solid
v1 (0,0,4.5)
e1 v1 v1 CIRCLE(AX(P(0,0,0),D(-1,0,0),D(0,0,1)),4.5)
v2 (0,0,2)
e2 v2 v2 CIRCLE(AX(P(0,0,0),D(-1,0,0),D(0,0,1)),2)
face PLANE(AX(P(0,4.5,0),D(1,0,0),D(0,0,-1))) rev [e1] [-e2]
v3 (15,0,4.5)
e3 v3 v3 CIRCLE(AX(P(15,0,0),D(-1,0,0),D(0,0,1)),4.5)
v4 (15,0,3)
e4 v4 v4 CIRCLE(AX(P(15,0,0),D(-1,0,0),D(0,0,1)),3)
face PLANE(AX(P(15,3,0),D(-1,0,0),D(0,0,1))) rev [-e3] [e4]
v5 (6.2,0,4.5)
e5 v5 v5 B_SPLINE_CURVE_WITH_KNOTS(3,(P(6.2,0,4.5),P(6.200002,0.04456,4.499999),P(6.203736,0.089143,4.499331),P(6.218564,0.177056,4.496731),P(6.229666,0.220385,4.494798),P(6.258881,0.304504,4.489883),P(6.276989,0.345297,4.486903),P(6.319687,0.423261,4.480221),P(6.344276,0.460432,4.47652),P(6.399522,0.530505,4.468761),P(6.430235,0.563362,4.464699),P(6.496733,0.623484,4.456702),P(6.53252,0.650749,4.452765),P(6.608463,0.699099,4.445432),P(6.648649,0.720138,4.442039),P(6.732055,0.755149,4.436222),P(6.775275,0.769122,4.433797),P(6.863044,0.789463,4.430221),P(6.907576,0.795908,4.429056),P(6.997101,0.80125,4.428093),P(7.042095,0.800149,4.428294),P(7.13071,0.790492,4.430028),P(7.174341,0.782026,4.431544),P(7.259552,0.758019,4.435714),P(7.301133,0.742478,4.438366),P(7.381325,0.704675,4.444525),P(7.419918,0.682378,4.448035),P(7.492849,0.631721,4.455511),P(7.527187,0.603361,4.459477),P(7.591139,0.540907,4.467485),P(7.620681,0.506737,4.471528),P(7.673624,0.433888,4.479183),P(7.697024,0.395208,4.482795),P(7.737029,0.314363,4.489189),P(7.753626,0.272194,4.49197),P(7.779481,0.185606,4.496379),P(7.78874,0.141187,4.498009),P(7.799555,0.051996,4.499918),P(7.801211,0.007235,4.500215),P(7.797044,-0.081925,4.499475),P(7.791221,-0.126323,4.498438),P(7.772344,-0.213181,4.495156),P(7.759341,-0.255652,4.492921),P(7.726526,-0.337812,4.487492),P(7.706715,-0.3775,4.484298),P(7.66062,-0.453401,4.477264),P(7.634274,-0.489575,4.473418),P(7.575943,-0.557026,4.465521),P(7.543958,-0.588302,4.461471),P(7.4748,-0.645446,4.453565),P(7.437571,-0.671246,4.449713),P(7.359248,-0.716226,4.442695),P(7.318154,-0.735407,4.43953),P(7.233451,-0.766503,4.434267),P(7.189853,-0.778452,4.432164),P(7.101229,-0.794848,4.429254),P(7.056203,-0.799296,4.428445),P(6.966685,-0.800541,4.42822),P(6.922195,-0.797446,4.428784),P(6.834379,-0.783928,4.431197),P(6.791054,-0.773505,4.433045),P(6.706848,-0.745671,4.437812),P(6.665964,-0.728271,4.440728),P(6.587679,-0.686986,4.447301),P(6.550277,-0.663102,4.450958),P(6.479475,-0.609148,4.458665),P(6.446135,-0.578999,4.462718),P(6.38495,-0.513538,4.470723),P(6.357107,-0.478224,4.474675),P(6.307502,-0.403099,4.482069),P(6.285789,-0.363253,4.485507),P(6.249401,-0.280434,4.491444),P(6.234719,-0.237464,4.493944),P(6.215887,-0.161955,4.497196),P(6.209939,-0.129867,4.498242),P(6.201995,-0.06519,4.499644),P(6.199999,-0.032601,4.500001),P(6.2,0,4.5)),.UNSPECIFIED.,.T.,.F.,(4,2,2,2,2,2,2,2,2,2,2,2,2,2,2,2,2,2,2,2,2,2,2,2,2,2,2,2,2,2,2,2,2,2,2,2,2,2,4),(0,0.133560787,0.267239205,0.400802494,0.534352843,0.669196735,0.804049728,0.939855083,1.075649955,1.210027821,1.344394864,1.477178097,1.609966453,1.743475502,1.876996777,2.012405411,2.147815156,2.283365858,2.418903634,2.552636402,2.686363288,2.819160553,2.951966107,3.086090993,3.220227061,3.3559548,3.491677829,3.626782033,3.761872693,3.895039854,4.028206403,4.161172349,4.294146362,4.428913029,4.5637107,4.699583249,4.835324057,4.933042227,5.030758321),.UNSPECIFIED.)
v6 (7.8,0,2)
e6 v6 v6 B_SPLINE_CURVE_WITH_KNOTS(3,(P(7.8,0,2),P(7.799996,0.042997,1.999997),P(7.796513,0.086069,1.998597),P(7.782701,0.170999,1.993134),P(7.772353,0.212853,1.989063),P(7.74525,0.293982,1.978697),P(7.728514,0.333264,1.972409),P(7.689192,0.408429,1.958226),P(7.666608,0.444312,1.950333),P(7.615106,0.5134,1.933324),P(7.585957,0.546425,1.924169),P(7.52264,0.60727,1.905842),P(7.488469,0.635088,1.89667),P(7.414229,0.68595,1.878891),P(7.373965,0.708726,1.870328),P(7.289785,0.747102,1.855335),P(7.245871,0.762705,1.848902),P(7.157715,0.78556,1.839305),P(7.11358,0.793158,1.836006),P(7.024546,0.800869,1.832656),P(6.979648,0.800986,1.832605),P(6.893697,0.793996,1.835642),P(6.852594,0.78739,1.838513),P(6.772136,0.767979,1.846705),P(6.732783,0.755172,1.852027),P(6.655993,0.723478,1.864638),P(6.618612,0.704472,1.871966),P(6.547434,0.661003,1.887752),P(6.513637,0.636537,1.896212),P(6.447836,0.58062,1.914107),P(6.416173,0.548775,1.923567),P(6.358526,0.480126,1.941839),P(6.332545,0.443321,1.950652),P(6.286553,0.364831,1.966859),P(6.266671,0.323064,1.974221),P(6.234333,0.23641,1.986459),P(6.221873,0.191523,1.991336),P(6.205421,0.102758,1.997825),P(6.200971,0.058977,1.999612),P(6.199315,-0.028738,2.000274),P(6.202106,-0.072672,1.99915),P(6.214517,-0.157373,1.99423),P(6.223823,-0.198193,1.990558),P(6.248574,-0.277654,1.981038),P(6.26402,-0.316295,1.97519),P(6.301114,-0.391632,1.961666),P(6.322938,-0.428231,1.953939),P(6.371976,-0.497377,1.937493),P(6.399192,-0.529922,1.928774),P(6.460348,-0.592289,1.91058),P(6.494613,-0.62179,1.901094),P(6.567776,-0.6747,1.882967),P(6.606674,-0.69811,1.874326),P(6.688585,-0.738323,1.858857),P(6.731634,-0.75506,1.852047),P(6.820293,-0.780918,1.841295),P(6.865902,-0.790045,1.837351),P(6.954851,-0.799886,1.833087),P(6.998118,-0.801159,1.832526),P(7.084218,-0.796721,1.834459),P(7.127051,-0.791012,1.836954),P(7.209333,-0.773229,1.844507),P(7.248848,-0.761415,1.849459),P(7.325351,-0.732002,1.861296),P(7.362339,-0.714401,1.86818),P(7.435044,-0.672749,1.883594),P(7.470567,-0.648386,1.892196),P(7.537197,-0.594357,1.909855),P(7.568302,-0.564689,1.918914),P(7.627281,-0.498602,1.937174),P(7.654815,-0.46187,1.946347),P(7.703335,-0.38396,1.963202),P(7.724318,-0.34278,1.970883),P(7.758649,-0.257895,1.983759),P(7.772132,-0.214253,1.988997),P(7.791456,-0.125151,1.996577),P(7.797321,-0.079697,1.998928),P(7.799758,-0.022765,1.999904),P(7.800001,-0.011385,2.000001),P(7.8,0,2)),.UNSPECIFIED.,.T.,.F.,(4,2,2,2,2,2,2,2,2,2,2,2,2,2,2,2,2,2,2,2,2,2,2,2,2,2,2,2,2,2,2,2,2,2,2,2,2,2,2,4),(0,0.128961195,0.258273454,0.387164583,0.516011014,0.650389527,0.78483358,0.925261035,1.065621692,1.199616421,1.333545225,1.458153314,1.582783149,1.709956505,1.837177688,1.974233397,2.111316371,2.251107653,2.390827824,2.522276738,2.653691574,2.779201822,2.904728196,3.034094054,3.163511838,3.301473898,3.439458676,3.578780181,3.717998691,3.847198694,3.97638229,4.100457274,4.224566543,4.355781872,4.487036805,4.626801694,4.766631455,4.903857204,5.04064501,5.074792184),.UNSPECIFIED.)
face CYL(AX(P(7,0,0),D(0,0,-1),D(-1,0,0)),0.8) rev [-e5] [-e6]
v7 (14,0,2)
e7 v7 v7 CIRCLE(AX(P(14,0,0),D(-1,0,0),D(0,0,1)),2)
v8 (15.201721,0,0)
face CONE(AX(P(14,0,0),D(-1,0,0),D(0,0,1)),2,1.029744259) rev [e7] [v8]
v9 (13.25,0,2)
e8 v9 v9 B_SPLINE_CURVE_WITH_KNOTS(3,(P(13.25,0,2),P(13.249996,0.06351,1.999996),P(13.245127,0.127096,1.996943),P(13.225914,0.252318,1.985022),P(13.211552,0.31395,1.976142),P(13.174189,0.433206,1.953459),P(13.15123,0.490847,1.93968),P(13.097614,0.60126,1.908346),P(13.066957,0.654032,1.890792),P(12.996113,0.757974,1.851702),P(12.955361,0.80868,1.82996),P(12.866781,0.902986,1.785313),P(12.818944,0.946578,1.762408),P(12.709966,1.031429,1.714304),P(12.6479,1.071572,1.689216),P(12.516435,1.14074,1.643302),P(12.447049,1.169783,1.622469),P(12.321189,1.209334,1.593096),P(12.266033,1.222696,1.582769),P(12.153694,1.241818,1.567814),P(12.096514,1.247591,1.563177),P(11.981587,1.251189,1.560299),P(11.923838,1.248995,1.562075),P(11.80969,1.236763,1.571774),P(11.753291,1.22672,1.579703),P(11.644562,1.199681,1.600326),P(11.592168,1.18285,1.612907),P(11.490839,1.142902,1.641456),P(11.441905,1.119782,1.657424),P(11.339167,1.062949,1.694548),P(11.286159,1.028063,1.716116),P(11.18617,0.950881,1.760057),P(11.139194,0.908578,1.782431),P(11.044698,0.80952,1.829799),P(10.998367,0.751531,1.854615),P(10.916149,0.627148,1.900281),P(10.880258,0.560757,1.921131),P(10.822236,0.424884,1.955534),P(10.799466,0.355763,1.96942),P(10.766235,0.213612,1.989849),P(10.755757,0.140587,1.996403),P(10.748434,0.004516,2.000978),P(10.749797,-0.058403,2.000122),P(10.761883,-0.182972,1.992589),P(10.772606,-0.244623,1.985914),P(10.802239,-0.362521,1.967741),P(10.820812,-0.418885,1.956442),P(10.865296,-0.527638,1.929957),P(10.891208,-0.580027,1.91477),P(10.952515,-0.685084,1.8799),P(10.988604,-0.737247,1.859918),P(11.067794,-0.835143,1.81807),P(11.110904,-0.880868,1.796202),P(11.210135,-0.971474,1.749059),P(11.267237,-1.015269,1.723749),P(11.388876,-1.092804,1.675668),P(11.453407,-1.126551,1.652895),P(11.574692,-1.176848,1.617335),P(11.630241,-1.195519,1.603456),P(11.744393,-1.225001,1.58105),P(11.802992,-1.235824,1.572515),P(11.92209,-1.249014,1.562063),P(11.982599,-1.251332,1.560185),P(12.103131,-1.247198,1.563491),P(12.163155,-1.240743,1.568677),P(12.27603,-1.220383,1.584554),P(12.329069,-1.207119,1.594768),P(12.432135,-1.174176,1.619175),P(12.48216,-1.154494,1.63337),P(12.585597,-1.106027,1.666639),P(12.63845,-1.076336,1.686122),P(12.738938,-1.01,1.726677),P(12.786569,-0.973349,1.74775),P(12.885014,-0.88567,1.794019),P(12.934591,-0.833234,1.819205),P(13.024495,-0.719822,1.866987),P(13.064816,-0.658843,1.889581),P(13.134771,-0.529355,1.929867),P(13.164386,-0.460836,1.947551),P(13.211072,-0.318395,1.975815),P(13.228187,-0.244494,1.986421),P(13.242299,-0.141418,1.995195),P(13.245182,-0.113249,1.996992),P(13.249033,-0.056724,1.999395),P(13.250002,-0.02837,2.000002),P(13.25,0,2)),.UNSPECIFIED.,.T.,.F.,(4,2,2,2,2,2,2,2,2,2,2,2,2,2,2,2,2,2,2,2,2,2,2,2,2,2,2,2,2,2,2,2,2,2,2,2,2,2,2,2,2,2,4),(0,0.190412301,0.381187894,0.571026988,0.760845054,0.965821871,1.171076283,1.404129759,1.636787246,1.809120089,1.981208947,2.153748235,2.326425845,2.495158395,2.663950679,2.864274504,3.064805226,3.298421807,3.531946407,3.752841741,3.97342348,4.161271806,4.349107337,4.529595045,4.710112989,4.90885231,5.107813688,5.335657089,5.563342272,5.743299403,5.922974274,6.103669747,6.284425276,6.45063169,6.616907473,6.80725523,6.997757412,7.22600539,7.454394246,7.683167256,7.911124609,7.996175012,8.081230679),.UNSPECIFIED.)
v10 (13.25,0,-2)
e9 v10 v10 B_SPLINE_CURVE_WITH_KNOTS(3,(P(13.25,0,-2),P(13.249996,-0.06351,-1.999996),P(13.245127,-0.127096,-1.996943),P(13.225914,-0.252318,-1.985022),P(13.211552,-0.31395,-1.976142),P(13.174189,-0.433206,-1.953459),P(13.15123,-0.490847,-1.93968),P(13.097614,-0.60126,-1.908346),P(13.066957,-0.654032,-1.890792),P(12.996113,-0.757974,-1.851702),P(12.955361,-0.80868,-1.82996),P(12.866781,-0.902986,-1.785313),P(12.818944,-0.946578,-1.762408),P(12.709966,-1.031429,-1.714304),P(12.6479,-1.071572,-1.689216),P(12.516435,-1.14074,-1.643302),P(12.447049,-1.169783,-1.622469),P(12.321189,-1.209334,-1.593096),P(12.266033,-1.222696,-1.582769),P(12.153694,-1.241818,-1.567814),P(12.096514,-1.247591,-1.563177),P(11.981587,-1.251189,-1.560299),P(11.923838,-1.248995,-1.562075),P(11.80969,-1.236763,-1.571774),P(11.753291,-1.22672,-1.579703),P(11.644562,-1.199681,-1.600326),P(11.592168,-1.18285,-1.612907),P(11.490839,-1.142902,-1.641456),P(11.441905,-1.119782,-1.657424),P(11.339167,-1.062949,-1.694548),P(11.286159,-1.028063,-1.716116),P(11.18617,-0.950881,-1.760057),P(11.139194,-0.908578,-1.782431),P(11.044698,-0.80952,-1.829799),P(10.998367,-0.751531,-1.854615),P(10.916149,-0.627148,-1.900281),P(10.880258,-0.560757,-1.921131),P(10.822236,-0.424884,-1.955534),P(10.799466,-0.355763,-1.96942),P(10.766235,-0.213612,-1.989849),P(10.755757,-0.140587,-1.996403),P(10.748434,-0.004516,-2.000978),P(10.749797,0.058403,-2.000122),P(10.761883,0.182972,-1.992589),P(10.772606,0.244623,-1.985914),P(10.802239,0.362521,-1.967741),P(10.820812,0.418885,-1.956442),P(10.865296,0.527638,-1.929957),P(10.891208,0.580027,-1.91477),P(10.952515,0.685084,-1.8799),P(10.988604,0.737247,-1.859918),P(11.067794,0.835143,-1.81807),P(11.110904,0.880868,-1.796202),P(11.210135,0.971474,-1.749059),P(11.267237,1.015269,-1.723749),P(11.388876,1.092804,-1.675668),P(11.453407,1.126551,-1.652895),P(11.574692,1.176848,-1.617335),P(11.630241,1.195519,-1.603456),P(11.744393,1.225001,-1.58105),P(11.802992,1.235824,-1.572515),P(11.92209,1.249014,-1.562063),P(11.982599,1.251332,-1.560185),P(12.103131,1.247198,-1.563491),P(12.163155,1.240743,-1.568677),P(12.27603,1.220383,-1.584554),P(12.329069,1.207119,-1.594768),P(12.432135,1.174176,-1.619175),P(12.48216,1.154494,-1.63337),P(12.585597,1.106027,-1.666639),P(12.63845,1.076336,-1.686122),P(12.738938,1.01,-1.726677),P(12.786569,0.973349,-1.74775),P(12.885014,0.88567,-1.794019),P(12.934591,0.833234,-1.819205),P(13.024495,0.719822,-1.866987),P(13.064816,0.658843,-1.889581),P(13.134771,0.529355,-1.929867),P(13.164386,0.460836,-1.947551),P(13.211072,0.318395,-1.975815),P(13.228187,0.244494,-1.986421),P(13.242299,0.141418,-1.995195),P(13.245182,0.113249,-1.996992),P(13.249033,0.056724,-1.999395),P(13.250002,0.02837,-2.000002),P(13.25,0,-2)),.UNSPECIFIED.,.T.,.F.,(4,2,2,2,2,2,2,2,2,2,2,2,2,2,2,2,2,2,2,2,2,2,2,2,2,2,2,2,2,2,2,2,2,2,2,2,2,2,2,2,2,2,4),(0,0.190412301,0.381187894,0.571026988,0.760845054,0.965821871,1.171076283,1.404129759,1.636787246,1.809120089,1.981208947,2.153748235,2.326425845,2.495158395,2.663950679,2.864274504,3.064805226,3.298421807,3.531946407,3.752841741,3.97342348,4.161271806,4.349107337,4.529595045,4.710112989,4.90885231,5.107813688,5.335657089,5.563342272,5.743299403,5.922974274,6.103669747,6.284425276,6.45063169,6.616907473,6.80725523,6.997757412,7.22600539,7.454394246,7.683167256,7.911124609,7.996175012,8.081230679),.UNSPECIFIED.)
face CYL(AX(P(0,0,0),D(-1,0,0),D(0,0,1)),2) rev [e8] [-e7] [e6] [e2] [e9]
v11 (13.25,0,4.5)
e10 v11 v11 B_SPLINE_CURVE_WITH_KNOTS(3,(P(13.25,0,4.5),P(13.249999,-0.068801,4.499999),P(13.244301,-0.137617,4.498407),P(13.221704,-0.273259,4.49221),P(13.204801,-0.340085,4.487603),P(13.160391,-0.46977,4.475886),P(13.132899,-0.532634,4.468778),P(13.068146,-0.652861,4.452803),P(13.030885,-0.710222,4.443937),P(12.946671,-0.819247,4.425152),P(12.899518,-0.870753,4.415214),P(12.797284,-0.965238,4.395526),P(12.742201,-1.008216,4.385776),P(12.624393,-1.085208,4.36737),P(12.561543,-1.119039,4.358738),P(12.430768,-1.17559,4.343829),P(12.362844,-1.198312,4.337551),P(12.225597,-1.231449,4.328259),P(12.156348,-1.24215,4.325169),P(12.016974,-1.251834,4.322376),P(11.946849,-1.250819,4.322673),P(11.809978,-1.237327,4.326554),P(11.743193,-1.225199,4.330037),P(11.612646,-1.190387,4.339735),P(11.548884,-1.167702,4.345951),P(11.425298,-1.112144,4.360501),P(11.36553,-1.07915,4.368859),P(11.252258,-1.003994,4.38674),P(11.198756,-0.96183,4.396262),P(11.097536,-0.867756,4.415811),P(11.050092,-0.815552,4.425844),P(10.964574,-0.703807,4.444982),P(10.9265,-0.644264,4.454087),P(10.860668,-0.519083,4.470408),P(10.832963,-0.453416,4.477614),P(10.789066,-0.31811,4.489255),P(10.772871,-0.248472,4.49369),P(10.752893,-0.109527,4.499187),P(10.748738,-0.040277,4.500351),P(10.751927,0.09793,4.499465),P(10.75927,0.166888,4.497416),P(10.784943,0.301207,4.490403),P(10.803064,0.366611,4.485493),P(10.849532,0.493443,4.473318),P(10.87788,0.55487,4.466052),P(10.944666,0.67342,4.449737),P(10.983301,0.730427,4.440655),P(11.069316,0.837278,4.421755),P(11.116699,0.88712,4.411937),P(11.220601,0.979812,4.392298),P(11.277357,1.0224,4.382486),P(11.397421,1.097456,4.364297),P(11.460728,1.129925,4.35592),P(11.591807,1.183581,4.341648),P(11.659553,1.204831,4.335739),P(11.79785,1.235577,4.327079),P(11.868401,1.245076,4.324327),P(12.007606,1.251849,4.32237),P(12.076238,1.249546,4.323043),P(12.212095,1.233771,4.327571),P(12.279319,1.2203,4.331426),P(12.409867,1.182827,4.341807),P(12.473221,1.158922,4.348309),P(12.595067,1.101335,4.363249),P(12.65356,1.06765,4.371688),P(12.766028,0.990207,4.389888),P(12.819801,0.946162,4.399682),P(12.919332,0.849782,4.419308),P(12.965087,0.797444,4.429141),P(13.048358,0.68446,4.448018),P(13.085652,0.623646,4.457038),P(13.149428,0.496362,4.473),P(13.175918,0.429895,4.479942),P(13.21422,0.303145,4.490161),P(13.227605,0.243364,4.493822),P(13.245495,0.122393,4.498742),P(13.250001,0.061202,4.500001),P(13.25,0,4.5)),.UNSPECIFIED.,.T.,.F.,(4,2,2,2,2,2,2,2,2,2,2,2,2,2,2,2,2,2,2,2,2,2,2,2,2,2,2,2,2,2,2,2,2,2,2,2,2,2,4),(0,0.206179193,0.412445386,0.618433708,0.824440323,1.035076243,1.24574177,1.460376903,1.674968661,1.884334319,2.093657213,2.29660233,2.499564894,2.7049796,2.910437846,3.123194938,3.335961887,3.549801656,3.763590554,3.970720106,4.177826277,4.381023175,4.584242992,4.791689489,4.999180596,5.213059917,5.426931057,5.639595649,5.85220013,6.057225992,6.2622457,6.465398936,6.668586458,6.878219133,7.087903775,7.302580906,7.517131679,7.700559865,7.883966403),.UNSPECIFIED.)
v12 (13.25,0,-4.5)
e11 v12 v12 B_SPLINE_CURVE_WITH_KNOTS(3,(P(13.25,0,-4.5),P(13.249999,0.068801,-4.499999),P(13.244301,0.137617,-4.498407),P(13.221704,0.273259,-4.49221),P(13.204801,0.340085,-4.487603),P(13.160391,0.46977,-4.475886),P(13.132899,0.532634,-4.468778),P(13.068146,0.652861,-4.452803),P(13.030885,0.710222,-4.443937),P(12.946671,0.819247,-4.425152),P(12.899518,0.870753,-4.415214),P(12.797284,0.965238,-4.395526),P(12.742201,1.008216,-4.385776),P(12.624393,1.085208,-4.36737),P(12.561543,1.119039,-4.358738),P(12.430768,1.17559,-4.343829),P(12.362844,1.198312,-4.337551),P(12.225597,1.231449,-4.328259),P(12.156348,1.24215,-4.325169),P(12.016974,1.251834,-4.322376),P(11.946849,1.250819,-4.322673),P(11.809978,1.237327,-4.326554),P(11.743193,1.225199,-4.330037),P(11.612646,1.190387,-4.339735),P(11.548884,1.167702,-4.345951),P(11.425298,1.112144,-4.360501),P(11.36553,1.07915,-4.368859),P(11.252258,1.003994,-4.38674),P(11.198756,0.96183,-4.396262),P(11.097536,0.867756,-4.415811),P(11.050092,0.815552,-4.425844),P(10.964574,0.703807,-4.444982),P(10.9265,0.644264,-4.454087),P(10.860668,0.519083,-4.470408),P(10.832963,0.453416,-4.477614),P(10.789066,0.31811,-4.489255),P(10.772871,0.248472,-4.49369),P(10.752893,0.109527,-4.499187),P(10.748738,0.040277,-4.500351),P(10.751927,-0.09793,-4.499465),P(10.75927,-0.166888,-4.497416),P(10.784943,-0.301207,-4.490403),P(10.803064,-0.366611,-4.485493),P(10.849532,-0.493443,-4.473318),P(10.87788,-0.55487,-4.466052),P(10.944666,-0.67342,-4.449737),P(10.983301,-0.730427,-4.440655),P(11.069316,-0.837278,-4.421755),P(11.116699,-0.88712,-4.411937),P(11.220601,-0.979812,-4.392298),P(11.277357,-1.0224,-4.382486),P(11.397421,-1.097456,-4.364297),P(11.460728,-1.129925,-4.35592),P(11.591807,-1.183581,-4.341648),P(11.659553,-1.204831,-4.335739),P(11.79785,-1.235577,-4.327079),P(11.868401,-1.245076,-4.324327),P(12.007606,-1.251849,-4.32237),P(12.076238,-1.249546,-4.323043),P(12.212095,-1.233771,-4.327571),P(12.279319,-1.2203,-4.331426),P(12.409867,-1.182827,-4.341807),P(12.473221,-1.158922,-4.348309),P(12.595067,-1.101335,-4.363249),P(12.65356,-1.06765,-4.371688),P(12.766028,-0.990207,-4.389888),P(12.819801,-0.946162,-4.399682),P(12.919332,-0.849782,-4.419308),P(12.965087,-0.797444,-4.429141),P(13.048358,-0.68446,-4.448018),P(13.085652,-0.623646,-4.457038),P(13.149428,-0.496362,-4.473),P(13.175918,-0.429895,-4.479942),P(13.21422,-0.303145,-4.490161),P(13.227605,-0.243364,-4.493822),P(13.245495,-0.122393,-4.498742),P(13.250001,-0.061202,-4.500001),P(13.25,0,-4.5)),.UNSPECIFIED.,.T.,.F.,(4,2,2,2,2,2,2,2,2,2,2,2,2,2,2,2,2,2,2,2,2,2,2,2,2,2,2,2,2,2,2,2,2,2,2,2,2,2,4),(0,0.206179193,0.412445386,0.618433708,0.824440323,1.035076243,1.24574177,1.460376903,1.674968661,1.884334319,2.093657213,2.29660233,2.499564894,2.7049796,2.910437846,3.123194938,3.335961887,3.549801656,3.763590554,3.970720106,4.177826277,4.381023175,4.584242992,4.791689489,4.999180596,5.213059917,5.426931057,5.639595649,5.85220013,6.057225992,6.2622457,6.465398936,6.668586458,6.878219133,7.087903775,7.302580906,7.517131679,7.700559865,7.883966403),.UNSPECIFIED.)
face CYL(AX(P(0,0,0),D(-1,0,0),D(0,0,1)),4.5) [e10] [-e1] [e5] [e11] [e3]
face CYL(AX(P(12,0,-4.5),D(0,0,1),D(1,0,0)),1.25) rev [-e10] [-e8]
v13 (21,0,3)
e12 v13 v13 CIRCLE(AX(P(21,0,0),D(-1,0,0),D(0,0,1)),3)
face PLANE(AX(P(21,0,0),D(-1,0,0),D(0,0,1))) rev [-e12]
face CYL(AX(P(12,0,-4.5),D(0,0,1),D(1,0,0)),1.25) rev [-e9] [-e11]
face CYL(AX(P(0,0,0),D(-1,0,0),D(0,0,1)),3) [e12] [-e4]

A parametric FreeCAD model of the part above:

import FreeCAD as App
import Part
import Sketcher
Q = App.Units.Quantity


def add_polygon(sketch, points):
    """Adds a closed chain of lines whose ends are joined by coincident constraints."""
    first, n = sketch.GeometryCount, len(points)
    for a, b in zip(points, points[1:] + points[:1]):
        sketch.addGeometry(Part.LineSegment(App.Vector(*a, 0), App.Vector(*b, 0)), False)
    for i in range(n):
        sketch.addConstraint(Sketcher.Constraint("Coincident", first + i, 2, first + (i + 1) % n, 1))

doc = App.newDocument("Part")
body = doc.addObject("PartDesign::Body", "Body")

# Sketch on XY plane
sketch1 = body.newObject("Sketcher::SketchObject", "Sketch")
sketch1.AttachmentSupport = (doc.getObject("XY_Plane"), [""])
sketch1.MapMode = "FlatFace"
add_polygon(sketch1, [(0, 4.5), (0, 2), (14, 2), (15.2, 0), (21, 0), (21, 3), (15, 3), (15, 4.5)])  # lines 0-7
sketch1.addConstraint(Sketcher.Constraint("Vertical", 0))
sketch1.addConstraint(Sketcher.Constraint("Horizontal", 1))
sketch1.addConstraint(Sketcher.Constraint("Horizontal", 3))
sketch1.addConstraint(Sketcher.Constraint("Vertical", 4))
sketch1.addConstraint(Sketcher.Constraint("Horizontal", 5))
sketch1.addConstraint(Sketcher.Constraint("Vertical", 6))
sketch1.addConstraint(Sketcher.Constraint("Horizontal", 7))
sketch1.addConstraint(Sketcher.Constraint("PointOnObject", 0, 2, -2))
sketch1.addConstraint(Sketcher.Constraint("PointOnObject", 2, 2, -1))
sketch1.addConstraint(Sketcher.Constraint("DistanceX", 1, 1, 1, 2, Q("14 mm")))
sketch1.addConstraint(Sketcher.Constraint("DistanceX", 5, 2, 5, 1, Q("6 mm")))
sketch1.addConstraint(Sketcher.Constraint("DistanceX", 7, 2, 7, 1, Q("15 mm")))
sketch1.addConstraint(Sketcher.Constraint("DistanceY", 4, 1, 4, 2, Q("3 mm")))
sketch1.addConstraint(Sketcher.Constraint("Angle", 2, Q("-59 deg")))
sketch1.addConstraint(Sketcher.Constraint("DistanceY", 0, 2, 0, 1, Q("2.5 mm")))
sketch1.addConstraint(Sketcher.Constraint("DistanceY", 6, 1, 6, 2, Q("1.5 mm")))
revolution = body.newObject("PartDesign::Revolution", "Revolution")
revolution.Profile = sketch1
revolution.ReferenceAxis = (sketch1, ["H_Axis"])
revolution.Angle = 360

# Sketch on YZ plane
sketch2 = body.newObject("Sketcher::SketchObject", "Sketch001")
sketch2.AttachmentSupport = (doc.getObject("YZ_Plane"), [""])
sketch2.MapMode = "FlatFace"
sketch2.AttachmentOffset = App.Placement(App.Vector(0, 0, 7), App.Rotation())
add_polygon(sketch2, [(0, 4.5), (0, 0), (0.8, 0), (0.8, 4.5)])  # lines 0-3
sketch2.addConstraint(Sketcher.Constraint("Vertical", 0))
sketch2.addConstraint(Sketcher.Constraint("Horizontal", 1))
sketch2.addConstraint(Sketcher.Constraint("Vertical", 2))
sketch2.addConstraint(Sketcher.Constraint("Horizontal", 3))
sketch2.addConstraint(Sketcher.Constraint("Coincident", 0, 2, -1, 1))
sketch2.addConstraint(Sketcher.Constraint("DistanceX", 1, 1, 1, 2, Q("0.8 mm")))
sketch2.addConstraint(Sketcher.Constraint("DistanceY", 0, 2, 0, 1, Q("4.5 mm")))
groove = body.newObject("PartDesign::Groove", "Groove")
groove.Profile = sketch2
groove.ReferenceAxis = (sketch2, ["V_Axis"])
groove.Angle = 360

# Sketch on XY plane
sketch3 = body.newObject("Sketcher::SketchObject", "Sketch002")
sketch3.AttachmentSupport = (doc.getObject("XY_Plane"), [""])
sketch3.MapMode = "FlatFace"
sketch3.addGeometry(Part.Circle(App.Vector(12, 0, 0), App.Vector(0, 0, 1), 1.2), False)
sketch3.addConstraint(Sketcher.Constraint("PointOnObject", 0, 3, -1))
sketch3.addConstraint(Sketcher.Constraint("Diameter", 0, Q("2.5 mm")))
sketch3.addConstraint(Sketcher.Constraint("DistanceX", -1, 1, 0, 3, Q("12 mm")))
pocket1 = body.newObject("PartDesign::Pocket", "Pocket")
pocket1.Profile = sketch3
pocket1.Type = "ThroughAll"
pocket1.Midplane = True

doc.recompute()
